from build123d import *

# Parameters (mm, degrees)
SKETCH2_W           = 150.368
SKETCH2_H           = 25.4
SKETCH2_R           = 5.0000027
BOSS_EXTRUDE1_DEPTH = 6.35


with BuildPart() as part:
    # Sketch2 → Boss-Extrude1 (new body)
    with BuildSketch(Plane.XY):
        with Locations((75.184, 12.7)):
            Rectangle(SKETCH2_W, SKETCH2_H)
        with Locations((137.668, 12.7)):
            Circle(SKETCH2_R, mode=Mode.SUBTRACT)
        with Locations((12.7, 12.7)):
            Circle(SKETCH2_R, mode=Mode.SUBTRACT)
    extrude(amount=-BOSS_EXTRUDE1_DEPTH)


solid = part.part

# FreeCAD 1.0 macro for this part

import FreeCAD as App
import Part
import Sketcher
Q = App.Units.Quantity

doc = App.newDocument("Part")
body = doc.addObject("PartDesign::Body", "Body")

# Sketch on XY plane
sketch1 = body.newObject("Sketcher::SketchObject", "Sketch")
sketch1.AttachmentSupport = (doc.getObject("XY_Plane"), [""])
sketch1.MapMode = "FlatFace"
sketch1.addGeometry(Part.LineSegment(App.Vector(0, 25, 0), App.Vector(0, 0, 0)), False)
sketch1.addGeometry(Part.LineSegment(App.Vector(0, 0, 0), App.Vector(150, 0, 0)), False)
sketch1.addGeometry(Part.LineSegment(App.Vector(150, 0, 0), App.Vector(150, 25, 0)), False)
sketch1.addGeometry(Part.LineSegment(App.Vector(150, 25, 0), App.Vector(0, 25, 0)), False)
sketch1.addGeometry(Part.Circle(App.Vector(13, 13, 0), App.Vector(0, 0, 1), 5), False)
sketch1.addGeometry(Part.Circle(App.Vector(138, 13, 0), App.Vector(0, 0, 1), 5), False)
sketch1.addConstraint(Sketcher.Constraint("Coincident", 0, 2, 1, 1))
sketch1.addConstraint(Sketcher.Constraint("Coincident", 1, 2, 2, 1))
sketch1.addConstraint(Sketcher.Constraint("Coincident", 2, 2, 3, 1))
sketch1.addConstraint(Sketcher.Constraint("Coincident", 3, 2, 0, 1))
sketch1.addConstraint(Sketcher.Constraint("Vertical", 0))
sketch1.addConstraint(Sketcher.Constraint("Horizontal", 1))
sketch1.addConstraint(Sketcher.Constraint("Vertical", 2))
sketch1.addConstraint(Sketcher.Constraint("Horizontal", 3))
sketch1.addConstraint(Sketcher.Constraint("Coincident", 0, 2, -1, 1))
sketch1.addConstraint(Sketcher.Constraint("Equal", 4, 5))
sketch1.addConstraint(Sketcher.Constraint("Horizontal", 4, 3, 5, 3))
sketch1.addConstraint(Sketcher.Constraint("DistanceY", 0, 2, 0, 1, Q("1 in")))
sketch1.addConstraint(Sketcher.Constraint("DistanceX", 1, 1, 1, 2, Q("5.92 in")))
sketch1.addConstraint(Sketcher.Constraint("DistanceX", -1, 1, 4, 3, Q("0.5 in")))
sketch1.addConstraint(Sketcher.Constraint("DistanceY", -1, 1, 4, 3, Q("0.5 in")))
sketch1.addConstraint(Sketcher.Constraint("DistanceX", 5, 3, 1, 2, Q("0.5 in")))
sketch1.addConstraint(Sketcher.Constraint("Diameter", 4, Q("10.000005 mm")))
pad1 = body.newObject("PartDesign::Pad", "Pad")
pad1.Profile = sketch1
pad1.Length = Q("0.25 in")
pad1.Reversed = True

doc.recompute()
